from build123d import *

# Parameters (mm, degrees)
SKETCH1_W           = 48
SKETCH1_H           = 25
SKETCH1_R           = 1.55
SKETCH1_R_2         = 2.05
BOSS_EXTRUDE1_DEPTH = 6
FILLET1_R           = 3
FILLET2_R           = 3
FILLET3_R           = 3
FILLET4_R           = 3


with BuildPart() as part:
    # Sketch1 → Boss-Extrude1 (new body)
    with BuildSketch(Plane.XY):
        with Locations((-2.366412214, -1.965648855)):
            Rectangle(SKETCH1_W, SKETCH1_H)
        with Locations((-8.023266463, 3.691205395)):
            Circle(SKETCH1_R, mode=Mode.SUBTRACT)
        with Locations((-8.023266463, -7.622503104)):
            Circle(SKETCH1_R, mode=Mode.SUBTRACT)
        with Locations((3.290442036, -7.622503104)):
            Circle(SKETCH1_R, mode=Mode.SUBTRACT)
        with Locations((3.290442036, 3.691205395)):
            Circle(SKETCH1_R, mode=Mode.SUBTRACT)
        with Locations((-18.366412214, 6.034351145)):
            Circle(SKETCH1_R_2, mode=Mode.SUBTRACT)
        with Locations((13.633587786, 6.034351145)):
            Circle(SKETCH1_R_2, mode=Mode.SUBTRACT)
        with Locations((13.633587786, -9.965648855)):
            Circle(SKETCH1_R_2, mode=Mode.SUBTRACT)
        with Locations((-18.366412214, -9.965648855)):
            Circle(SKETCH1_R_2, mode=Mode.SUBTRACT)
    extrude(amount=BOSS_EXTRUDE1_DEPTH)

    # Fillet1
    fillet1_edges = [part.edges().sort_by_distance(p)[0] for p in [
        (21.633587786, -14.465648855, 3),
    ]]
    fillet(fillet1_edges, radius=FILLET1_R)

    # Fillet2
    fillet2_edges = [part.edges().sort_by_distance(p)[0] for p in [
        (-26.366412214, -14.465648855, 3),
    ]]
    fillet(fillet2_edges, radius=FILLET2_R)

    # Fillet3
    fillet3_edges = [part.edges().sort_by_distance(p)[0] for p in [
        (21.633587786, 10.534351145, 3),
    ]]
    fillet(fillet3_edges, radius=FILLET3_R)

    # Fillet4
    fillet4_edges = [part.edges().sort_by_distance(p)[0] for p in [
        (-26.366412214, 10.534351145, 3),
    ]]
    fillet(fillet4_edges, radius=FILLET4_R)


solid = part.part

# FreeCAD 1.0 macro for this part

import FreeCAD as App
import Part
import Sketcher
Q = App.Units.Quantity


def edges_at(feature, points):
    """Names of the edges that pass closest to the given points."""
    edges = feature.Shape.Edges
    near = lambda p: min(range(len(edges)), key=lambda i: edges[i].distToShape(Part.Vertex(*p))[0])
    return sorted({f"Edge{near(p) + 1}" for p in points})

doc = App.newDocument("Part")
params = doc.addObject("Spreadsheet::Sheet", "Params")
for row, (alias, value) in enumerate([
    ("sketch1_diameter", "4.1 mm"),
    ("sketch1_diameter2", "3.1 mm"),
    ("sketch1_width", "48 mm"),
    ("sketch1_height", "25 mm"),
    ("pad1_length", "6 mm"),
    ("fillet_radius", "3 mm"),
    ("fillet2_radius", "3 mm"),
    ("fillet3_radius", "3 mm"),
    ("fillet4_radius", "3 mm"),
], start=1):
    params.set(f"A{row}", alias)
    params.set(f"B{row}", "=" + value)
    params.setAlias(f"B{row}", alias)

body = doc.addObject("PartDesign::Body", "Body")

# Sketch on XY plane
sketch1 = body.newObject("Sketcher::SketchObject", "Sketch")
sketch1.AttachmentSupport = (doc.getObject("XY_Plane"), [""])
sketch1.MapMode = "FlatFace"
sketch1.addGeometry([
    Part.LineSegment(App.Vector(-26.4, 10.5, 0), App.Vector(-26.4, -14.5, 0)),  # 0
    Part.LineSegment(App.Vector(-26.4, -14.5, 0), App.Vector(21.6, -14.5, 0)),  # 1
    Part.LineSegment(App.Vector(21.6, -14.5, 0), App.Vector(21.6, 10.5, 0)),  # 2
    Part.LineSegment(App.Vector(21.6, 10.5, 0), App.Vector(-26.4, 10.5, 0)),  # 3
    Part.Circle(App.Vector(-18.4, -10, 0), App.Vector(0, 0, 1), 2),  # 4
    Part.Circle(App.Vector(-8, -7.6, 0), App.Vector(0, 0, 1), 1.6),  # 5
    Part.Circle(App.Vector(3.3, -7.6, 0), App.Vector(0, 0, 1), 1.6),  # 6
    Part.Circle(App.Vector(13.6, -10, 0), App.Vector(0, 0, 1), 2),  # 7
    Part.Circle(App.Vector(-18.4, 6, 0), App.Vector(0, 0, 1), 2),  # 8
    Part.Circle(App.Vector(-8, 3.7, 0), App.Vector(0, 0, 1), 1.6),  # 9
    Part.Circle(App.Vector(3.3, 3.7, 0), App.Vector(0, 0, 1), 1.6),  # 10
    Part.Circle(App.Vector(13.6, 6, 0), App.Vector(0, 0, 1), 2),  # 11
], False)
sketch1.addConstraint([
    Sketcher.Constraint("Coincident", 0, 2, 1, 1),
    Sketcher.Constraint("Coincident", 1, 2, 2, 1),
    Sketcher.Constraint("Coincident", 2, 2, 3, 1),
    Sketcher.Constraint("Coincident", 3, 2, 0, 1),
    Sketcher.Constraint("Vertical", 0),
    Sketcher.Constraint("Horizontal", 1),
    Sketcher.Constraint("Vertical", 2),
    Sketcher.Constraint("Horizontal", 3),
    Sketcher.Constraint("Equal", 5, 6),
    Sketcher.Constraint("Equal", 4, 7),
    Sketcher.Constraint("Equal", 7, 8),
    Sketcher.Constraint("Equal", 6, 9),
    Sketcher.Constraint("Equal", 9, 10),
    Sketcher.Constraint("Equal", 8, 11),
    Sketcher.Constraint("Horizontal", 5, 3, 6, 3),
    Sketcher.Constraint("Horizontal", 4, 3, 7, 3),
    Sketcher.Constraint("Horizontal", 9, 3, 10, 3),
    Sketcher.Constraint("Horizontal", 8, 3, 11, 3),
    Sketcher.Constraint("Vertical", 4, 3, 8, 3),
    Sketcher.Constraint("Vertical", 5, 3, 9, 3),
    Sketcher.Constraint("Vertical", 6, 3, 10, 3),
    Sketcher.Constraint("Vertical", 7, 3, 11, 3),
    Sketcher.Constraint("Diameter", 4, Q("4.1 mm")),
    Sketcher.Constraint("Diameter", 5, Q("3.1 mm")),
    Sketcher.Constraint("DistanceX", 1, 1, 1, 2, Q("48 mm")),
    Sketcher.Constraint("DistanceY", 0, 2, 0, 1, Q("25 mm")),
    Sketcher.Constraint("DistanceX", 4, 3, 7, 3, Q("32 mm")),
    Sketcher.Constraint("DistanceY", 4, 3, 8, 3, Q("16 mm")),
    Sketcher.Constraint("DistanceX", 0, 2, 4, 3, Q("8 mm")),
    Sketcher.Constraint("DistanceY", 0, 2, 4, 3, Q("4.5 mm")),
    Sketcher.Constraint("DistanceY", 4, 3, -1, 1, Q("9.965649 mm")),
    Sketcher.Constraint("DistanceX", 5, 3, 6, 3, Q("11.313708 mm")),
    Sketcher.Constraint("DistanceY", 5, 3, 9, 3, Q("11.313708 mm")),
    Sketcher.Constraint("DistanceX", 4, 3, -1, 1, Q("18.366412 mm")),
    Sketcher.Constraint("DistanceX", 5, 3, -1, 1, Q("8.023266 mm")),
    Sketcher.Constraint("DistanceY", 5, 3, -1, 1, Q("7.622503 mm")),
])
sketch1.setExpression("Constraints[22]", "Params.sketch1_diameter")
sketch1.setExpression("Constraints[23]", "Params.sketch1_diameter2")
sketch1.setExpression("Constraints[24]", "Params.sketch1_width")
sketch1.setExpression("Constraints[25]", "Params.sketch1_height")
pad1 = body.newObject("PartDesign::Pad", "Pad")
pad1.Profile = sketch1
pad1.setExpression("Length", "Params.pad1_length")
doc.recompute()

fillet = body.newObject("PartDesign::Fillet", "Fillet")
fillet.Base = (pad1, edges_at(pad1, [(21.634, -14.466, 3)]))
fillet.setExpression("Radius", "Params.fillet_radius")
doc.recompute()

fillet2 = body.newObject("PartDesign::Fillet", "Fillet001")
fillet2.Base = (fillet, edges_at(fillet, [(-26.366, -14.466, 3)]))
fillet2.setExpression("Radius", "Params.fillet2_radius")
doc.recompute()

fillet3 = body.newObject("PartDesign::Fillet", "Fillet002")
fillet3.Base = (fillet2, edges_at(fillet2, [(21.634, 10.534, 3)]))
fillet3.setExpression("Radius", "Params.fillet3_radius")
doc.recompute()

fillet4 = body.newObject("PartDesign::Fillet", "Fillet003")
fillet4.Base = (fillet3, edges_at(fillet3, [(-26.366, 10.534, 3)]))
fillet4.setExpression("Radius", "Params.fillet4_radius")

doc.recompute()
